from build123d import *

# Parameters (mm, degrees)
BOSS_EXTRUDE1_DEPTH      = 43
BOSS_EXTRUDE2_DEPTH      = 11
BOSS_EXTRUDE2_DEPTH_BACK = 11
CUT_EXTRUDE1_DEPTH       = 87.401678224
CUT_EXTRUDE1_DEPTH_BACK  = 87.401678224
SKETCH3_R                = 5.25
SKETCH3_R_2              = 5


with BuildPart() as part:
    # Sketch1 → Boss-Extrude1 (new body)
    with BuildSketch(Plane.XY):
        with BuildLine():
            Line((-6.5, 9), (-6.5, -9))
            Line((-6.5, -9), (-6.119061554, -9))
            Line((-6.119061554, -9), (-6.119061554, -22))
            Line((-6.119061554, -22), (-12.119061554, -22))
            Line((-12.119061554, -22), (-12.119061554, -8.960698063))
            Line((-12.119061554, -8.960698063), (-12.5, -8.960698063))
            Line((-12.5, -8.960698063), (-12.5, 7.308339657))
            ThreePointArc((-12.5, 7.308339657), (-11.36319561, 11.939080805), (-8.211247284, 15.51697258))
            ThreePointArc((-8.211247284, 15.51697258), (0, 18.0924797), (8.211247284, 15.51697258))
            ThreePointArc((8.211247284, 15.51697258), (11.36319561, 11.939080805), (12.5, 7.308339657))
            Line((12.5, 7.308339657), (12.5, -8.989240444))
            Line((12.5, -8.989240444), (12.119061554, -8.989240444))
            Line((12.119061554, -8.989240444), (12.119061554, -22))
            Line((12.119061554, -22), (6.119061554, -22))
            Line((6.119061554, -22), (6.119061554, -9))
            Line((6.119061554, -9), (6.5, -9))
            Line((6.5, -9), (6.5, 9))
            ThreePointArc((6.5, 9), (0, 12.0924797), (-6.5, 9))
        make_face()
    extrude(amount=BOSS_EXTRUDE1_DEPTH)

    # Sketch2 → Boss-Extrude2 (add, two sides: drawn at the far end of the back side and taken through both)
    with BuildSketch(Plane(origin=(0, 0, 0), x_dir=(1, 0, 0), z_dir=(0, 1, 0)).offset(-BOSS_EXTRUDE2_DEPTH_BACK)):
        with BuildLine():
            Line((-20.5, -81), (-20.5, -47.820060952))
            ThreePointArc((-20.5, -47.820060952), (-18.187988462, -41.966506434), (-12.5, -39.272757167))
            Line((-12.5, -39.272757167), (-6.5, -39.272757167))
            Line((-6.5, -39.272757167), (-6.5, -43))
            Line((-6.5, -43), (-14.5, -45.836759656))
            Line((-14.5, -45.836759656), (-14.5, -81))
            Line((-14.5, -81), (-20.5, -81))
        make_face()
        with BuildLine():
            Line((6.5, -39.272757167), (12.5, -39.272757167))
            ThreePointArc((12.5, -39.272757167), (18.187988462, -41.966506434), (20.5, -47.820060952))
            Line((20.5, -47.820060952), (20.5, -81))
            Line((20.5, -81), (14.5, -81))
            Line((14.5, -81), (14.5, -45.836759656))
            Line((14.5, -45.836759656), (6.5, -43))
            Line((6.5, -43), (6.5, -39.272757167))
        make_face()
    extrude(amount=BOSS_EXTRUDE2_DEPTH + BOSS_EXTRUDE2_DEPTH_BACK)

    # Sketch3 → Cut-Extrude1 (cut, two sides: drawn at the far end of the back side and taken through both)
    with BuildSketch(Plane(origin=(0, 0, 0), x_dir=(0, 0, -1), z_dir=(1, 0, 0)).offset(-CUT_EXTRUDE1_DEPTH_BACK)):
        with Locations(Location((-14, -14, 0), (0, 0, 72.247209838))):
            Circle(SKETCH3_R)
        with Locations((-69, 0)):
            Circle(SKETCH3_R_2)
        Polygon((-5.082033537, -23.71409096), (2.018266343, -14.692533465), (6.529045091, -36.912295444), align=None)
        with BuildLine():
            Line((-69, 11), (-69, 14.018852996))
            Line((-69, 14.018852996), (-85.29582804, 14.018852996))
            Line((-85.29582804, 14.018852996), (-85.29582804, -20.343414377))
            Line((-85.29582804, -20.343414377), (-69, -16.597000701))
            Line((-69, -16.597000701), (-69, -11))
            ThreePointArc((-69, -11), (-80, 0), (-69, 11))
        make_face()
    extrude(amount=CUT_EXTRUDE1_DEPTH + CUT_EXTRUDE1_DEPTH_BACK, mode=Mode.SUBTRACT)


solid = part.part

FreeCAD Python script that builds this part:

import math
import FreeCAD as App
import Part
import Sketcher

V = App.Vector

doc = App.newDocument("Part")
params = doc.addObject("Spreadsheet::Sheet", "Params")
for row, (alias, value) in enumerate([
    ("sketch1_radius", "10 mm"),
    ("sketch1_width", "6 mm"),
    ("sketch1_height", "18 mm"),
    ("sketch1_height2", "13 mm"),
    ("pad1_length", "43 mm"),
    ("sketch2_width", "6 mm"),
    ("pad2_length", "11 mm"),
    ("pad2_length2", "11 mm"),
    ("sketch3_diameter", "10 mm"),
    ("sketch3_radius", "11 mm"),
    ("sketch3_diameter2", "10.5 mm"),
], start=1):
    params.set(f"A{row}", alias)
    params.set(f"B{row}", "=" + value)
    params.setAlias(f"B{row}", alias)

body = doc.addObject("PartDesign::Body", "Body")

sketch1 = body.newObject("Sketcher::SketchObject", "Sketch")
sketch1.AttachmentSupport = (doc.getObject("XY_Plane"), [""])
sketch1.MapMode = "FlatFace"
sketch1.addGeometry(Part.LineSegment(V(-6.5, -9, 0), V(-6.5, 9, 0)), False)
sketch1.addGeometry(Part.ArcOfCircle(Part.Circle(V(0, 3.715152, 0), V(0, 0, 1), 8.377328), math.radians(39.112957), math.radians(140.887043)), False)
sketch1.addGeometry(Part.LineSegment(V(6.5, 9, 0), V(6.5, -9, 0)), False)
sketch1.addGeometry(Part.LineSegment(V(6.5, -9, 0), V(6.119062, -9, 0)), False)
sketch1.addGeometry(Part.LineSegment(V(6.119062, -9, 0), V(6.119062, -22, 0)), False)
sketch1.addGeometry(Part.LineSegment(V(6.119062, -22, 0), V(12.119062, -22, 0)), False)
sketch1.addGeometry(Part.LineSegment(V(12.119062, -22, 0), V(12.119062, -8.98924, 0)), False)
sketch1.addGeometry(Part.LineSegment(V(12.119062, -8.98924, 0), V(12.5, -8.98924, 0)), False)
sketch1.addGeometry(Part.LineSegment(V(12.5, -8.98924, 0), V(12.5, 7.30834, 0)), False)
sketch1.addGeometry(Part.ArcOfCircle(Part.Circle(V(2.5, 7.30834, 0), V(0, 0, 1), 10), math.radians(0), math.radians(55.171306)), False)
sketch1.addGeometry(Part.ArcOfCircle(Part.Circle(V(0, 3.715152, 0), V(0, 0, 1), 14.377328), math.radians(55.171306), math.radians(124.828694)), False)
sketch1.addGeometry(Part.ArcOfCircle(Part.Circle(V(-2.5, 7.30834, 0), V(0, 0, 1), 10), math.radians(124.828694), math.radians(180)), False)
sketch1.addGeometry(Part.LineSegment(V(-12.5, 7.30834, 0), V(-12.5, -8.960698, 0)), False)
sketch1.addGeometry(Part.LineSegment(V(-12.5, -8.960698, 0), V(-12.119062, -8.960698, 0)), False)
sketch1.addGeometry(Part.LineSegment(V(-12.119062, -8.960698, 0), V(-12.119062, -22, 0)), False)
sketch1.addGeometry(Part.LineSegment(V(-12.119062, -22, 0), V(-6.119062, -22, 0)), False)
sketch1.addGeometry(Part.LineSegment(V(-6.119062, -22, 0), V(-6.119062, -9, 0)), False)
sketch1.addGeometry(Part.LineSegment(V(-6.119062, -9, 0), V(-6.5, -9, 0)), False)
sketch1.addConstraint(Sketcher.Constraint("Coincident", 0, 2, 1, 2))
sketch1.addConstraint(Sketcher.Constraint("Coincident", 1, 1, 2, 1))
sketch1.addConstraint(Sketcher.Constraint("Coincident", 2, 2, 3, 1))
sketch1.addConstraint(Sketcher.Constraint("Coincident", 3, 2, 4, 1))
sketch1.addConstraint(Sketcher.Constraint("Coincident", 4, 2, 5, 1))
sketch1.addConstraint(Sketcher.Constraint("Coincident", 5, 2, 6, 1))
sketch1.addConstraint(Sketcher.Constraint("Coincident", 6, 2, 7, 1))
sketch1.addConstraint(Sketcher.Constraint("Coincident", 7, 2, 8, 1))
sketch1.addConstraint(Sketcher.Constraint("Tangent", 8, 2, 9, 1))
sketch1.addConstraint(Sketcher.Constraint("Tangent", 9, 2, 10, 1))
sketch1.addConstraint(Sketcher.Constraint("Tangent", 10, 2, 11, 1))
sketch1.addConstraint(Sketcher.Constraint("Tangent", 11, 2, 12, 1))
sketch1.addConstraint(Sketcher.Constraint("Coincident", 12, 2, 13, 1))
sketch1.addConstraint(Sketcher.Constraint("Coincident", 13, 2, 14, 1))
sketch1.addConstraint(Sketcher.Constraint("Coincident", 14, 2, 15, 1))
sketch1.addConstraint(Sketcher.Constraint("Coincident", 15, 2, 16, 1))
sketch1.addConstraint(Sketcher.Constraint("Coincident", 16, 2, 17, 1))
sketch1.addConstraint(Sketcher.Constraint("Coincident", 17, 2, 0, 1))
sketch1.addConstraint(Sketcher.Constraint("Vertical", 0))
sketch1.addConstraint(Sketcher.Constraint("Vertical", 2))
sketch1.addConstraint(Sketcher.Constraint("Horizontal", 3))
sketch1.addConstraint(Sketcher.Constraint("Vertical", 4))
sketch1.addConstraint(Sketcher.Constraint("Horizontal", 5))
sketch1.addConstraint(Sketcher.Constraint("Vertical", 6))
sketch1.addConstraint(Sketcher.Constraint("Horizontal", 7))
sketch1.addConstraint(Sketcher.Constraint("Vertical", 8))
sketch1.addConstraint(Sketcher.Constraint("Vertical", 12))
sketch1.addConstraint(Sketcher.Constraint("Horizontal", 13))
sketch1.addConstraint(Sketcher.Constraint("Vertical", 14))
sketch1.addConstraint(Sketcher.Constraint("Horizontal", 15))
sketch1.addConstraint(Sketcher.Constraint("Vertical", 16))
sketch1.addConstraint(Sketcher.Constraint("Horizontal", 17))
sketch1.addConstraint(Sketcher.Constraint("Coincident", 10, 3, 1, 3))
sketch1.addConstraint(Sketcher.Constraint("Equal", 9, 11))
sketch1.addConstraint(Sketcher.Constraint("Symmetric", 0, 2, 2, 2, -1, 1))
sketch1.addConstraint(Sketcher.Constraint("Symmetric", 9, 3, 11, 3, -2))
sketch1.addConstraint(Sketcher.Constraint("Symmetric", 5, 2, 14, 2, -2))
sketch1.addConstraint(Sketcher.Constraint("Symmetric", 3, 2, 16, 2, -2))
sketch1.addConstraint(Sketcher.Constraint("Equal", 3, 7))
sketch1.addConstraint(Sketcher.Constraint("Radius", 9, 10.0))
sketch1.addConstraint(Sketcher.Constraint("DistanceX", 5, 1, 5, 2, 6.0))
sketch1.addConstraint(Sketcher.Constraint("DistanceY", 0, 1, 0, 2, 18.0))
sketch1.addConstraint(Sketcher.Constraint("DistanceY", 4, 2, 4, 1, 13.0))
sketch1.addConstraint(Sketcher.Constraint("DistanceX", 11, 3, 9, 3, 5.0))
sketch1.addConstraint(Sketcher.Constraint("DistanceY", 14, 2, 14, 1, 13.039302))
sketch1.addConstraint(Sketcher.Constraint("Radius", 1, 8.377328))
sketch1.addConstraint(Sketcher.Constraint("Radius", 10, 14.377328))
sketch1.addConstraint(Sketcher.Constraint("DistanceX", 3, 2, 3, 1, 0.380938))
sketch1.addConstraint(Sketcher.Constraint("DistanceY", 6, 1, 6, 2, 13.01076))
sketch1.setExpression("Constraints[39]", "Params.sketch1_radius")
sketch1.setExpression("Constraints[40]", "Params.sketch1_width")
sketch1.setExpression("Constraints[41]", "Params.sketch1_height")
sketch1.setExpression("Constraints[42]", "Params.sketch1_height2")
pad1 = body.newObject("PartDesign::Pad", "Pad")
pad1.Profile = sketch1
pad1.setExpression("Length", "Params.pad1_length")

sketch2 = body.newObject("Sketcher::SketchObject", "Sketch001")
sketch2.AttachmentSupport = (doc.getObject("XZ_Plane"), [""])
sketch2.MapMode = "FlatFace"
sketch2.addGeometry(Part.LineSegment(V(-20.5, 47.820061, 0), V(-20.5, 81, 0)), False)
sketch2.addGeometry(Part.LineSegment(V(-20.5, 81, 0), V(-14.5, 81, 0)), False)
sketch2.addGeometry(Part.LineSegment(V(-14.5, 81, 0), V(-14.5, 45.83676, 0)), False)
sketch2.addGeometry(Part.LineSegment(V(-14.5, 45.83676, 0), V(-6.5, 43, 0)), False)
sketch2.addGeometry(Part.LineSegment(V(-6.5, 43, 0), V(-6.5, 39.272757, 0)), False)
sketch2.addGeometry(Part.LineSegment(V(-6.5, 39.272757, 0), V(-12.5, 39.272757, 0)), False)
sketch2.addGeometry(Part.ArcOfCircle(Part.Circle(V(-11.933975, 47.820061, 0), V(0, 0, 1), 8.566025), math.radians(180), math.radians(266.211254)), False)
sketch2.addGeometry(Part.LineSegment(V(12.5, 39.272757, 0), V(6.5, 39.272757, 0)), False)
sketch2.addGeometry(Part.LineSegment(V(6.5, 39.272757, 0), V(6.5, 43, 0)), False)
sketch2.addGeometry(Part.LineSegment(V(6.5, 43, 0), V(14.5, 45.83676, 0)), False)
sketch2.addGeometry(Part.LineSegment(V(14.5, 45.83676, 0), V(14.5, 81, 0)), False)
sketch2.addGeometry(Part.LineSegment(V(14.5, 81, 0), V(20.5, 81, 0)), False)
sketch2.addGeometry(Part.LineSegment(V(20.5, 81, 0), V(20.5, 47.820061, 0)), False)
sketch2.addGeometry(Part.ArcOfCircle(Part.Circle(V(11.933975, 47.820061, 0), V(0, 0, 1), 8.566025), math.radians(-86.211254), math.radians(0)), False)
sketch2.addConstraint(Sketcher.Constraint("Coincident", 0, 2, 1, 1))
sketch2.addConstraint(Sketcher.Constraint("Coincident", 1, 2, 2, 1))
sketch2.addConstraint(Sketcher.Constraint("Coincident", 2, 2, 3, 1))
sketch2.addConstraint(Sketcher.Constraint("Coincident", 3, 2, 4, 1))
sketch2.addConstraint(Sketcher.Constraint("Coincident", 4, 2, 5, 1))
sketch2.addConstraint(Sketcher.Constraint("Coincident", 5, 2, 6, 2))
sketch2.addConstraint(Sketcher.Constraint("Tangent", 6, 1, 0, 1))
sketch2.addConstraint(Sketcher.Constraint("Coincident", 7, 2, 8, 1))
sketch2.addConstraint(Sketcher.Constraint("Coincident", 8, 2, 9, 1))
sketch2.addConstraint(Sketcher.Constraint("Coincident", 9, 2, 10, 1))
sketch2.addConstraint(Sketcher.Constraint("Coincident", 10, 2, 11, 1))
sketch2.addConstraint(Sketcher.Constraint("Coincident", 11, 2, 12, 1))
sketch2.addConstraint(Sketcher.Constraint("Tangent", 12, 2, 13, 2))
sketch2.addConstraint(Sketcher.Constraint("Coincident", 13, 1, 7, 1))
sketch2.addConstraint(Sketcher.Constraint("Vertical", 0))
sketch2.addConstraint(Sketcher.Constraint("Horizontal", 1))
sketch2.addConstraint(Sketcher.Constraint("Vertical", 2))
sketch2.addConstraint(Sketcher.Constraint("Vertical", 4))
sketch2.addConstraint(Sketcher.Constraint("Horizontal", 5))
sketch2.addConstraint(Sketcher.Constraint("Horizontal", 7))
sketch2.addConstraint(Sketcher.Constraint("Vertical", 8))
sketch2.addConstraint(Sketcher.Constraint("Vertical", 10))
sketch2.addConstraint(Sketcher.Constraint("Horizontal", 11))
sketch2.addConstraint(Sketcher.Constraint("Vertical", 12))
sketch2.addConstraint(Sketcher.Constraint("Equal", 6, 13))
sketch2.addConstraint(Sketcher.Constraint("Symmetric", 6, 3, 13, 3, -2))
sketch2.addConstraint(Sketcher.Constraint("Symmetric", 4, 2, 7, 2, -2))
sketch2.addConstraint(Sketcher.Constraint("Symmetric", 2, 2, 9, 2, -2))
sketch2.addConstraint(Sketcher.Constraint("Horizontal", 3, 2, 8, 2))
sketch2.addConstraint(Sketcher.Constraint("Horizontal", 1, 2, 10, 2))
sketch2.addConstraint(Sketcher.Constraint("Equal", 1, 5))
sketch2.addConstraint(Sketcher.Constraint("DistanceX", 1, 1, 1, 2, 6.0))
sketch2.addConstraint(Sketcher.Constraint("DistanceY", -1, 1, 0, 2, 81.0))
sketch2.addConstraint(Sketcher.Constraint("DistanceY", -1, 1, 3, 2, 43.0))
sketch2.addConstraint(Sketcher.Constraint("DistanceX", 2, 2, 3, 2, 8.0))
sketch2.addConstraint(Sketcher.Constraint("DistanceX", 4, 2, 7, 2, 13.0))
sketch2.addConstraint(Sketcher.Constraint("Radius", 6, 8.566025))
sketch2.addConstraint(Sketcher.Constraint("DistanceY", 0, 1, 0, 2, 33.179939))
sketch2.addConstraint(Sketcher.Constraint("DistanceY", 2, 2, 2, 1, 35.16324))
sketch2.setExpression("Constraints[31]", "Params.sketch2_width")
pad2 = body.newObject("PartDesign::Pad", "Pad001")
pad2.Profile = sketch2
pad2.Type = "TwoLengths"
pad2.setExpression("Length", "Params.pad2_length")
pad2.setExpression("Length2", "Params.pad2_length2")
pad2.Reversed = True

sketch3 = body.newObject("Sketcher::SketchObject", "Sketch002")
sketch3.AttachmentSupport = (doc.getObject("YZ_Plane"), [""])
sketch3.MapMode = "FlatFace"
sketch3.addGeometry(Part.Circle(V(-14, 14, 0), V(0, 0, 1), 5.25), False)
sketch3.addGeometry(Part.Circle(V(0, 69, 0), V(0, 0, 1), 5), False)
sketch3.addGeometry(Part.LineSegment(V(-14.692533, -2.018266, 0), V(-23.714091, 5.082034, 0)), False)
sketch3.addGeometry(Part.LineSegment(V(-23.714091, 5.082034, 0), V(-36.912295, -6.529045, 0)), False)
sketch3.addGeometry(Part.LineSegment(V(-36.912295, -6.529045, 0), V(-14.692533, -2.018266, 0)), False)
sketch3.addGeometry(Part.LineSegment(V(11, 69, 0), V(14.018853, 69, 0)), False)
sketch3.addGeometry(Part.LineSegment(V(14.018853, 69, 0), V(14.018853, 85.295828, 0)), False)
sketch3.addGeometry(Part.LineSegment(V(14.018853, 85.295828, 0), V(-20.343414, 85.295828, 0)), False)
sketch3.addGeometry(Part.LineSegment(V(-20.343414, 85.295828, 0), V(-16.597001, 69, 0)), False)
sketch3.addGeometry(Part.LineSegment(V(-16.597001, 69, 0), V(-11, 69, 0)), False)
sketch3.addGeometry(Part.ArcOfCircle(Part.Circle(V(0, 69, 0), V(0, 0, 1), 11), math.radians(0), math.radians(180)), False)
sketch3.addConstraint(Sketcher.Constraint("Coincident", 2, 2, 3, 1))
sketch3.addConstraint(Sketcher.Constraint("Coincident", 3, 2, 4, 1))
sketch3.addConstraint(Sketcher.Constraint("Coincident", 4, 2, 2, 1))
sketch3.addConstraint(Sketcher.Constraint("Coincident", 5, 2, 6, 1))
sketch3.addConstraint(Sketcher.Constraint("Coincident", 6, 2, 7, 1))
sketch3.addConstraint(Sketcher.Constraint("Coincident", 7, 2, 8, 1))
sketch3.addConstraint(Sketcher.Constraint("Coincident", 8, 2, 9, 1))
sketch3.addConstraint(Sketcher.Constraint("Coincident", 9, 2, 10, 2))
sketch3.addConstraint(Sketcher.Constraint("Coincident", 10, 1, 5, 1))
sketch3.addConstraint(Sketcher.Constraint("Horizontal", 5))
sketch3.addConstraint(Sketcher.Constraint("Vertical", 6))
sketch3.addConstraint(Sketcher.Constraint("Horizontal", 7))
sketch3.addConstraint(Sketcher.Constraint("Horizontal", 9))
sketch3.addConstraint(Sketcher.Constraint("Coincident", 10, 3, 1, 3))
sketch3.addConstraint(Sketcher.Constraint("Symmetric", 9, 2, 10, 1, -2))
sketch3.addConstraint(Sketcher.Constraint("Horizontal", 10, 3, 5, 2))
sketch3.addConstraint(Sketcher.Constraint("Diameter", 1, 10.0))
sketch3.addConstraint(Sketcher.Constraint("Radius", 10, 11.0))
sketch3.addConstraint(Sketcher.Constraint("Diameter", 0, 10.5))
sketch3.addConstraint(Sketcher.Constraint("DistanceX", 0, 3, -1, 1, 14.0))
sketch3.addConstraint(Sketcher.Constraint("DistanceY", -1, 1, 0, 3, 14.0))
sketch3.addConstraint(Sketcher.Constraint("DistanceY", -1, 1, 1, 3, 69.0))
sketch3.addConstraint(Sketcher.Constraint("DistanceX", 9, 1, 9, 2, 5.597001))
sketch3.addConstraint(Sketcher.Constraint("Distance", 4, 22.673))
sketch3.addConstraint(Sketcher.Constraint("DistanceY", 6, 1, 6, 2, 16.295828))
sketch3.addConstraint(Sketcher.Constraint("DistanceY", 4, 2, 2, 2, 7.1003))
sketch3.addConstraint(Sketcher.Constraint("Distance", 2, 11.480538))
sketch3.addConstraint(Sketcher.Constraint("DistanceX", 5, 1, 5, 2, 3.018853))
sketch3.addConstraint(Sketcher.Constraint("DistanceX", 7, 2, 7, 1, 34.362267))
sketch3.addConstraint(Sketcher.Constraint("DistanceX", 2, 2, -1, 1, 23.714091))
sketch3.addConstraint(Sketcher.Constraint("DistanceY", 3, 2, 2, 2, 11.611079))
sketch3.addConstraint(Sketcher.Constraint("DistanceY", -1, 1, 2, 2, 5.082034))
sketch3.setExpression("Constraints[16]", "Params.sketch3_diameter")
sketch3.setExpression("Constraints[17]", "Params.sketch3_radius")
sketch3.setExpression("Constraints[18]", "Params.sketch3_diameter2")
pocket1 = body.newObject("PartDesign::Pocket", "Pocket")
pocket1.Profile = sketch3
pocket1.Type = "ThroughAll"
pocket1.Midplane = True

doc.recompute()
